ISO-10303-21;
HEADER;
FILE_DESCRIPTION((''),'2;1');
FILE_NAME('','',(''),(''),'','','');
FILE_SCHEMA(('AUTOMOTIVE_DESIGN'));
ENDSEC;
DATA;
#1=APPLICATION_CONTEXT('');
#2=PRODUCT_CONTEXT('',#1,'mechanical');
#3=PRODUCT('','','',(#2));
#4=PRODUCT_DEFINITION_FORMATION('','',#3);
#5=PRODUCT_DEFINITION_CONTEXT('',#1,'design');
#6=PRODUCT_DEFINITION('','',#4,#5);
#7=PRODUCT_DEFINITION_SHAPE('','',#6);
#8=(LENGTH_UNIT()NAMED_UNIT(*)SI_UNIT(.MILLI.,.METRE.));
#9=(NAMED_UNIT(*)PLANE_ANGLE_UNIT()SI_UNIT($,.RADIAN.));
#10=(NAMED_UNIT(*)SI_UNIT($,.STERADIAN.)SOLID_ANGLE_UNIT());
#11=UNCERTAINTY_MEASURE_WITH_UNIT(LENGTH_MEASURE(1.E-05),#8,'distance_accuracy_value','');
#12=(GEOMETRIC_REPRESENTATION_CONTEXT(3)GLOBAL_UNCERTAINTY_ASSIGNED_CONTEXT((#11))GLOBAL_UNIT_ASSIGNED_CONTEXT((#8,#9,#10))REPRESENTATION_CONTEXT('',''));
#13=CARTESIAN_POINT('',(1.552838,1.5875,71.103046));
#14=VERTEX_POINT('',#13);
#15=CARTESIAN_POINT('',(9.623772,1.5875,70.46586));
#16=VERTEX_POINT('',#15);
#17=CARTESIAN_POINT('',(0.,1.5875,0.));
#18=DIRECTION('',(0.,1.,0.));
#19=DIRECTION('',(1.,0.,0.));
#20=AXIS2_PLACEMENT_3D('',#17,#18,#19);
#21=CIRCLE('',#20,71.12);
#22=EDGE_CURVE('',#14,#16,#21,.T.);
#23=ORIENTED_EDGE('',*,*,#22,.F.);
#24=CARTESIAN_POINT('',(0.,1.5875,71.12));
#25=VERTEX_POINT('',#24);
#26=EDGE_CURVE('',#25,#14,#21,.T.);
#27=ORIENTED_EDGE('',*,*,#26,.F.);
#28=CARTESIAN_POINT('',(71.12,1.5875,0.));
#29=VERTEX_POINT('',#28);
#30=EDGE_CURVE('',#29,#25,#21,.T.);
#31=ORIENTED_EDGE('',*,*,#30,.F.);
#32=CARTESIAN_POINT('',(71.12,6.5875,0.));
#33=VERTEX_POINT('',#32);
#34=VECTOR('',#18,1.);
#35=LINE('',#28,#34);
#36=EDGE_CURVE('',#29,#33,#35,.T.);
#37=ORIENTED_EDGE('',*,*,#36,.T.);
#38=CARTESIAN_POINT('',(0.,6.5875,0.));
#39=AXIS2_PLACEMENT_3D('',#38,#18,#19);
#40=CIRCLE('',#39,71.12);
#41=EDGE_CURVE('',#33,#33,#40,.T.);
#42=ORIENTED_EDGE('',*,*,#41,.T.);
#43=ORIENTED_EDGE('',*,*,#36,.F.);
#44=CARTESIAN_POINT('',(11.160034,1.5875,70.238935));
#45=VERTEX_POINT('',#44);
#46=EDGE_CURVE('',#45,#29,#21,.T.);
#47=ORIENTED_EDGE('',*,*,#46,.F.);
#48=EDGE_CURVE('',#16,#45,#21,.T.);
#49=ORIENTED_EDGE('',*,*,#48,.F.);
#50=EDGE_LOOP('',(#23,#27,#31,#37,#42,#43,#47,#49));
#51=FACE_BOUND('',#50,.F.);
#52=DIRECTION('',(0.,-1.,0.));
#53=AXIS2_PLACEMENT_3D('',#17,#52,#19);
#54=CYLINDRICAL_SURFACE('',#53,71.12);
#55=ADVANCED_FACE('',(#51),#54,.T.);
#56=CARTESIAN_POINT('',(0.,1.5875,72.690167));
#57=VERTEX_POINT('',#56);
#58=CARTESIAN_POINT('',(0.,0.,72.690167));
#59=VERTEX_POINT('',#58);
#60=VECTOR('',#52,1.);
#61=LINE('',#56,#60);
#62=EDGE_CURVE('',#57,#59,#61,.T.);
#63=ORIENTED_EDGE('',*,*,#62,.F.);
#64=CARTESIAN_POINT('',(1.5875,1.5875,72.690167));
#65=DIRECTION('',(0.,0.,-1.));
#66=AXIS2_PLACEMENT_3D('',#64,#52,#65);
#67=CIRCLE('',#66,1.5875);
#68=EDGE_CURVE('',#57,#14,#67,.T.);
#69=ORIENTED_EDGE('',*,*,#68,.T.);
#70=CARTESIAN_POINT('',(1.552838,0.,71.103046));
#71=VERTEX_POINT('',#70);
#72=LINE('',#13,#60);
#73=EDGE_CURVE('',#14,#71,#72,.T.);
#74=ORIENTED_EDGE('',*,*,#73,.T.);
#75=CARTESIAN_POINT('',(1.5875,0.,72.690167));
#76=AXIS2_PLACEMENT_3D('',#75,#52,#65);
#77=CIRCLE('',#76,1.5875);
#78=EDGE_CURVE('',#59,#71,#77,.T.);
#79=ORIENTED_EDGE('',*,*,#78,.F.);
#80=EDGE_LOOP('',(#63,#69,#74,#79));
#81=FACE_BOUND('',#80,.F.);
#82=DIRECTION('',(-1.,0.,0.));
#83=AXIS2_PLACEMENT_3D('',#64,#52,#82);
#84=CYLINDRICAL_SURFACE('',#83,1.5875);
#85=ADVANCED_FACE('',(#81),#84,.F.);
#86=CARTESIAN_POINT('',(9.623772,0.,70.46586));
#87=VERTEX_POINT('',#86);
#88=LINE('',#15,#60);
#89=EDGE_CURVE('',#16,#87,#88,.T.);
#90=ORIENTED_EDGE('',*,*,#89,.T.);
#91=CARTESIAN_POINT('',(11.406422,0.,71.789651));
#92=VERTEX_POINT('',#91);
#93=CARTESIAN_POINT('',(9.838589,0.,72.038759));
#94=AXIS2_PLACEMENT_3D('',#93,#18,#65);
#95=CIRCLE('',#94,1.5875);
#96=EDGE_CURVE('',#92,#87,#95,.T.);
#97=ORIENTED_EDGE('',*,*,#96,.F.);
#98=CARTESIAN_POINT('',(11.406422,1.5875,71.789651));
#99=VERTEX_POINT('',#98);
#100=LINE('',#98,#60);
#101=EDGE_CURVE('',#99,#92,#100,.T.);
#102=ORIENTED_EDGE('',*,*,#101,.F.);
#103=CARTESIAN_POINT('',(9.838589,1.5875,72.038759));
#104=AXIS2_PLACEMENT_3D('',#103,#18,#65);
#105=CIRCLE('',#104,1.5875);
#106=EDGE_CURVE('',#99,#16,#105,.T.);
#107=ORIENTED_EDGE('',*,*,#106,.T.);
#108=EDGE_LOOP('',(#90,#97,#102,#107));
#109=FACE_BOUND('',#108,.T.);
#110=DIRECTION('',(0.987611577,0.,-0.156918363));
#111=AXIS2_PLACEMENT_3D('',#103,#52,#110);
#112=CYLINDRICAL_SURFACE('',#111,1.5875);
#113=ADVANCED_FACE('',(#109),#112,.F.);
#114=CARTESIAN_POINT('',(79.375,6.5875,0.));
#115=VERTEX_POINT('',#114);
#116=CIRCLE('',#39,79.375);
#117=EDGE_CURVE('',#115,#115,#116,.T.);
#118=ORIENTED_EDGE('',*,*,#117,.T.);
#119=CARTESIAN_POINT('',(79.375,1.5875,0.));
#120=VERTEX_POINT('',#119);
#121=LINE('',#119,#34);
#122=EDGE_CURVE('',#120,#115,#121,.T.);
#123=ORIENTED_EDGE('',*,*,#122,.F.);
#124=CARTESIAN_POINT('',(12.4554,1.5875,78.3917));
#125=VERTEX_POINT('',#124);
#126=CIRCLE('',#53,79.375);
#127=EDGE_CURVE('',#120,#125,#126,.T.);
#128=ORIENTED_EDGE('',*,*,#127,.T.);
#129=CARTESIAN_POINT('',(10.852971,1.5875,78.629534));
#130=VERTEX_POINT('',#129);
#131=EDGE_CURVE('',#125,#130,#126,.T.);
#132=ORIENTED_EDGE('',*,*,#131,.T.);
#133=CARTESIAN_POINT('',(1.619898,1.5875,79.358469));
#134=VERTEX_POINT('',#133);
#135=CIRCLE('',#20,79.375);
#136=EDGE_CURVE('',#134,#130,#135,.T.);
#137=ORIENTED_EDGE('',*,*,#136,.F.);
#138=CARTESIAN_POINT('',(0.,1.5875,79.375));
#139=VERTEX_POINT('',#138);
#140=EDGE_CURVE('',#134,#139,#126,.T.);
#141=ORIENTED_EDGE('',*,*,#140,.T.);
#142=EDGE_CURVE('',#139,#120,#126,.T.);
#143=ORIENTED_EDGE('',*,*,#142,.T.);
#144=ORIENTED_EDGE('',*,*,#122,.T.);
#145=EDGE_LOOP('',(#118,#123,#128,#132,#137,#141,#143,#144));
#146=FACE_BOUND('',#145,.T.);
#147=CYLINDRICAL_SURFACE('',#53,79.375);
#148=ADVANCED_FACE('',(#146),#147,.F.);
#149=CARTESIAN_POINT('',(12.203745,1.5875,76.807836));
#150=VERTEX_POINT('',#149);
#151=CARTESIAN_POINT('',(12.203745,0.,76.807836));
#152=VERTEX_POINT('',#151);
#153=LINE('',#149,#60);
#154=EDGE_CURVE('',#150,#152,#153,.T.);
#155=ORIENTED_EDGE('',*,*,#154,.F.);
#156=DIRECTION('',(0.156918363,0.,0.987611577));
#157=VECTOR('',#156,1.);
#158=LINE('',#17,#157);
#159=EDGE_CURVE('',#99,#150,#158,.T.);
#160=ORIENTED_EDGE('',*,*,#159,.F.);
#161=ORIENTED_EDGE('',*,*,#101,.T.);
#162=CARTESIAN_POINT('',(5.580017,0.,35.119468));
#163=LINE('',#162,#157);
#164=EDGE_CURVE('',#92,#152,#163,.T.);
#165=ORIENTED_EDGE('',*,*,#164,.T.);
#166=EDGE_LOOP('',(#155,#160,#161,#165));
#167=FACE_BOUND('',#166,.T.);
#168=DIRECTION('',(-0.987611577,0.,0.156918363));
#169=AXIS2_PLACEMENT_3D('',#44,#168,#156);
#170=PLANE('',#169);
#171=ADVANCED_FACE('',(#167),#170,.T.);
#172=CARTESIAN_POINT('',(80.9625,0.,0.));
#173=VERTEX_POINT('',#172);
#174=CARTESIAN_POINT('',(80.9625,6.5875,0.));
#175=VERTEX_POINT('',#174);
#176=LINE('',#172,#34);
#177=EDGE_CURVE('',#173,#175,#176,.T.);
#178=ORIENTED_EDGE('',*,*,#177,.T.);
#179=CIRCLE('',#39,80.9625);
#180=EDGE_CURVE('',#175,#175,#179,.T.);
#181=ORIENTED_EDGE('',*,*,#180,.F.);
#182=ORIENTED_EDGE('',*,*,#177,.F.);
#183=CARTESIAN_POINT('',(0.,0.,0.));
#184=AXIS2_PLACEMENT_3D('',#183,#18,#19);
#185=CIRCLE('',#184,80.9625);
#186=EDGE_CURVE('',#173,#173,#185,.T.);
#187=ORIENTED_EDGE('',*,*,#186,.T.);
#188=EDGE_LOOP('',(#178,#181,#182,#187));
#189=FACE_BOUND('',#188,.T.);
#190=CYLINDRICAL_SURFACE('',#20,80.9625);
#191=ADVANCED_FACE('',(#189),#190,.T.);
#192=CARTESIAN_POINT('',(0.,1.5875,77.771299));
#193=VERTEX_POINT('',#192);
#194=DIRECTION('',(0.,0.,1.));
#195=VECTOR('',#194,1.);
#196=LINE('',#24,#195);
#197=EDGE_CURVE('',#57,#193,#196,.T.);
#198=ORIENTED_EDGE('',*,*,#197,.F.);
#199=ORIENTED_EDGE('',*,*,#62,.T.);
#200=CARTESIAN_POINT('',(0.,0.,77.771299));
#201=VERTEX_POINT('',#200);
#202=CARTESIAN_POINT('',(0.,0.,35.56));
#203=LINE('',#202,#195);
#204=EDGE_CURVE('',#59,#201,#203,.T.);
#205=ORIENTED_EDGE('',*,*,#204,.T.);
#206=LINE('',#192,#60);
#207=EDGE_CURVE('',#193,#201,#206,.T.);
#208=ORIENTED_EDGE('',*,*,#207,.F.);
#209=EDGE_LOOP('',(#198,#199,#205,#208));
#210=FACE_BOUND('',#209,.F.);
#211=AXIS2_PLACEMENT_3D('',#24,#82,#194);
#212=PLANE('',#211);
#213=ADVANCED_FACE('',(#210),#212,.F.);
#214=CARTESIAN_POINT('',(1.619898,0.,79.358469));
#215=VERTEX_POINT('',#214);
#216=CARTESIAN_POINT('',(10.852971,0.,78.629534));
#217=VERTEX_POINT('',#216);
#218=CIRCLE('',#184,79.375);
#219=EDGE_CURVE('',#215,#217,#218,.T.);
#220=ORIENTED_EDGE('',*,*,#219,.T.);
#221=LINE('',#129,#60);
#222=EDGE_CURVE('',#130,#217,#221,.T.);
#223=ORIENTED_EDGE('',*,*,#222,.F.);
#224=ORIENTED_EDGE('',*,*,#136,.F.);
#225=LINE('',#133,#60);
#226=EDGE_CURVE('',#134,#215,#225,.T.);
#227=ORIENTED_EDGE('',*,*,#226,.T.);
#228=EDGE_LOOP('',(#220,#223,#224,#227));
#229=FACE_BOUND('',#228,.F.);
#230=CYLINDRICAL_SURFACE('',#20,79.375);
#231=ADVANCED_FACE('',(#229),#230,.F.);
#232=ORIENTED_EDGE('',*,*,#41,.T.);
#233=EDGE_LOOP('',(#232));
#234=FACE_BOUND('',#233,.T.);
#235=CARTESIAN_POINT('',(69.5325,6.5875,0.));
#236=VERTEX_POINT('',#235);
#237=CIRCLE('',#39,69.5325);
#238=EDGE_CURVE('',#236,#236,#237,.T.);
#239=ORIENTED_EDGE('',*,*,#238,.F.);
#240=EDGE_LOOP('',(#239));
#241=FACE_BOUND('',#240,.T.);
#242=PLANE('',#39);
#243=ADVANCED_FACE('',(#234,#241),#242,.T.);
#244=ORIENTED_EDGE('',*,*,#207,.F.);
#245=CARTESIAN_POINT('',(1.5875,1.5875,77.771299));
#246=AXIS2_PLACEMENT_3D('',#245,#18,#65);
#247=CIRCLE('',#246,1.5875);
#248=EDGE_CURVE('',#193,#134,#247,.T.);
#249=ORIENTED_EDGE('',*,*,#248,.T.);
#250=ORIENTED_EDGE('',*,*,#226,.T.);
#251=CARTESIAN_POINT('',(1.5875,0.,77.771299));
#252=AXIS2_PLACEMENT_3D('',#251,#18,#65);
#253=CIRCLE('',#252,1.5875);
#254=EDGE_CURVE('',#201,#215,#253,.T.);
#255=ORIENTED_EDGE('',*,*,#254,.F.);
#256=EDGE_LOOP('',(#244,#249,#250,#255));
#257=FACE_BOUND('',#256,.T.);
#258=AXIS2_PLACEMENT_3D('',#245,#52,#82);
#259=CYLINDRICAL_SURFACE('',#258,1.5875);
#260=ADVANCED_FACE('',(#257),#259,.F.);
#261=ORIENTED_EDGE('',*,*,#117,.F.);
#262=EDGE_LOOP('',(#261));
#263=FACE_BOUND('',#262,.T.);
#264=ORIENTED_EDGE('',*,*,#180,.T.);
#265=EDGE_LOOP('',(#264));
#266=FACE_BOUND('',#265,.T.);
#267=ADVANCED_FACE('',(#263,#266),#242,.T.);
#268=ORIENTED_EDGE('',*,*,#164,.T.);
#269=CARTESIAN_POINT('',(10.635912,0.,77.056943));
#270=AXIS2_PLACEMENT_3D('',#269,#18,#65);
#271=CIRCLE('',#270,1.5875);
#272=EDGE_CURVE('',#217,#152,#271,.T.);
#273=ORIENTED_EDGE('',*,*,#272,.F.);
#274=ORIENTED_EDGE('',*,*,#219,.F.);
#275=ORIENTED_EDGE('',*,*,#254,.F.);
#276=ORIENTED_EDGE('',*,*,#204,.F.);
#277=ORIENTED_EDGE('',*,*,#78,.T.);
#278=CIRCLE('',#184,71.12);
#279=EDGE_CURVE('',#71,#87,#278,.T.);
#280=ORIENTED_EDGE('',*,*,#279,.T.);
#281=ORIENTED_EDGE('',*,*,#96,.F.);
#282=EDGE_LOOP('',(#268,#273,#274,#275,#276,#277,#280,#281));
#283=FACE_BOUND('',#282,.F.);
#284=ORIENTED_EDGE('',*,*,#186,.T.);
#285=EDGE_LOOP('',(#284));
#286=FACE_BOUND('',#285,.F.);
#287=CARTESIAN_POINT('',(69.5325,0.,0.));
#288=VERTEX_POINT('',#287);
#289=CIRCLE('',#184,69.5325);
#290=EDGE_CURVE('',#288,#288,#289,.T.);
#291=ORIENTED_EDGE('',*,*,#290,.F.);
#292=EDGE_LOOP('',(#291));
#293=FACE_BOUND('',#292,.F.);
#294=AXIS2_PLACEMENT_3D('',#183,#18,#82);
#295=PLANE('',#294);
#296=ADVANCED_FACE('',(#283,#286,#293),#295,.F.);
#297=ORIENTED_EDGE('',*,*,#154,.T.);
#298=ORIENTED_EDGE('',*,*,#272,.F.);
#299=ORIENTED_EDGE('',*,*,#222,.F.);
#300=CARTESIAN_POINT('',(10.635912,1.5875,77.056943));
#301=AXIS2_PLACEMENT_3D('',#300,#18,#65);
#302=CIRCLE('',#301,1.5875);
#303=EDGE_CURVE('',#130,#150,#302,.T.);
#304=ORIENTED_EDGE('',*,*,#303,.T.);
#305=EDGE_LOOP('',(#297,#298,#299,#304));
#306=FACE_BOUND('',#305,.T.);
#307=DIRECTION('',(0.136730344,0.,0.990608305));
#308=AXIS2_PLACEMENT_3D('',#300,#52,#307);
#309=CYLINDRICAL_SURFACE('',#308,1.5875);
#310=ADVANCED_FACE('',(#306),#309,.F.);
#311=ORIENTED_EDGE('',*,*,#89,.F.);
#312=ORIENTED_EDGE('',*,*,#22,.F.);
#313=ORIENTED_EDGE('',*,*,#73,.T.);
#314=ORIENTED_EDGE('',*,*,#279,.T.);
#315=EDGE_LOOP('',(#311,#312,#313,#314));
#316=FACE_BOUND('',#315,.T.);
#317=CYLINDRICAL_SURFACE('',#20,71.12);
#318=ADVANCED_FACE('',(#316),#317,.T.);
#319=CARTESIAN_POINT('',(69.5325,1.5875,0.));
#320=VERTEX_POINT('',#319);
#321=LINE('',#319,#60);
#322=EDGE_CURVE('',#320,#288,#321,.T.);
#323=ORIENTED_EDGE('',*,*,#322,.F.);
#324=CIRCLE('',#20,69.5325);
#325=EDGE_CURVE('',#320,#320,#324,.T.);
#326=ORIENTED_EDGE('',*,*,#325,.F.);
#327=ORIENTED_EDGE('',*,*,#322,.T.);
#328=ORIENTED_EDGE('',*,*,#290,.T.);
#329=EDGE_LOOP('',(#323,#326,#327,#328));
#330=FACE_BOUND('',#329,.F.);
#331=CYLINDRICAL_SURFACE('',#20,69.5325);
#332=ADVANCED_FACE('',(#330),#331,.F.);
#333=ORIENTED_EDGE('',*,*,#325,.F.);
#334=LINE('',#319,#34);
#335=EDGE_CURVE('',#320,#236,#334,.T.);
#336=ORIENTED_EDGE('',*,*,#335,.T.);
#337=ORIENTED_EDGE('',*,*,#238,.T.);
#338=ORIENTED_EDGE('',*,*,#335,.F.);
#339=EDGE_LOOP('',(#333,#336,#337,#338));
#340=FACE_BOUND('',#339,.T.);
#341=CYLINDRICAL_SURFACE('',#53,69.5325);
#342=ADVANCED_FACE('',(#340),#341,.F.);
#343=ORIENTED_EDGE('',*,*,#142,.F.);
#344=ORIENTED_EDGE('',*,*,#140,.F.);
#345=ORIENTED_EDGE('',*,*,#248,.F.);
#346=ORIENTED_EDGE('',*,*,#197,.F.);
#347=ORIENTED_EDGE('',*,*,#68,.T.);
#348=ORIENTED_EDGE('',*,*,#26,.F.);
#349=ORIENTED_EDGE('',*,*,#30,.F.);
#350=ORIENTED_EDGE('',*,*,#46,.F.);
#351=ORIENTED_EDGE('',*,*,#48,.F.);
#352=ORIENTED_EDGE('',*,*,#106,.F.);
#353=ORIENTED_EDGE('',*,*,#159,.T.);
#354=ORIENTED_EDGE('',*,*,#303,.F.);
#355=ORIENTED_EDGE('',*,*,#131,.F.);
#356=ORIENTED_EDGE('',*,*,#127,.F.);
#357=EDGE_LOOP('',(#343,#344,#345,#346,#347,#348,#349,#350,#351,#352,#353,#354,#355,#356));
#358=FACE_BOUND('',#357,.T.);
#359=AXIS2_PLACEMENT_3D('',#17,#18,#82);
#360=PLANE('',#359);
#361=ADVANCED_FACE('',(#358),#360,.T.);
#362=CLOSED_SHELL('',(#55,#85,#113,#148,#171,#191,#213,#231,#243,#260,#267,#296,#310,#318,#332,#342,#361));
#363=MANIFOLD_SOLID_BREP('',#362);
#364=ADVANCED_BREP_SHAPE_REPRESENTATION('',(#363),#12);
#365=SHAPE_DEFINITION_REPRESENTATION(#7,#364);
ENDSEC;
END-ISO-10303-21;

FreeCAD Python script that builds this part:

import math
import FreeCAD as App
import Part
import Sketcher

V = App.Vector
Q = App.Units.Quantity


def edges_at(feature, points):
    """Names of the edges that pass closest to the given points."""
    edges = feature.Shape.Edges
    near = lambda p: min(range(len(edges)), key=lambda i: edges[i].distToShape(Part.Vertex(*p))[0])
    return sorted({f"Edge{near(p) + 1}" for p in points})

doc = App.newDocument("Part")
body = doc.addObject("PartDesign::Body", "Body")

sketch1 = body.newObject("Sketcher::SketchObject", "Sketch")
sketch1.AttachmentSupport = (doc.getObject("XZ_Plane"), [""])
sketch1.MapMode = "FlatFace"
sketch1.addGeometry([
    Part.Circle(V(0, 0, 0), V(0, 0, 1), 79.375),
    Part.Circle(V(0, 0, 0), V(0, 0, 1), 71.12),
], False)
sketch1.addConstraint([
    Sketcher.Constraint("Coincident", 0, 3, -1, 1),
    Sketcher.Constraint("Coincident", 1, 3, -1, 1),
    Sketcher.Constraint("Diameter", 1, Q("5.6 in")),
    Sketcher.Constraint("Diameter", 0, Q("6.25 in")),
])
pad1 = body.newObject("PartDesign::Pad", "Pad")
pad1.Profile = sketch1
pad1.Length = Q("0.0625 in")
pad1.Reversed = True

sketch2 = body.newObject("Sketcher::SketchObject", "Sketch001")
sketch2.AttachmentSupport = (doc.getObject("XZ_Plane"), [""])
sketch2.MapMode = "FlatFace"
sketch2.AttachmentOffset = App.Placement(V(0, 0, -0.0625 * 25.4), App.Rotation())
sketch2.addGeometry([
    Part.Circle(V(0, 0, 0), V(0, 0, 1), 80.9625),
    Part.Circle(V(0, 0, 0), V(0, 0, 1), 79.375),
    Part.Circle(V(0, 0, 0), V(0, 0, 1), 71.12),
    Part.Circle(V(0, 0, 0), V(0, 0, 1), 69.5325),
], False)
sketch2.addConstraint([
    Sketcher.Constraint("Coincident", 0, 3, -1, 1),
    Sketcher.Constraint("Coincident", 1, 3, -1, 1),
    Sketcher.Constraint("Coincident", 2, 3, -1, 1),
    Sketcher.Constraint("Coincident", 3, 3, -1, 1),
    Sketcher.Constraint("Diameter", 2, Q("5.6 in")),
    Sketcher.Constraint("Diameter", 1, Q("6.25 in")),
    Sketcher.Constraint("Diameter", 0, Q("6.375 in")),
    Sketcher.Constraint("Diameter", 3, Q("5.475 in")),
])
pad2 = body.newObject("PartDesign::Pad", "Pad001")
pad2.Profile = sketch2
pad2.Type = "TwoLengths"
pad2.Length = 5
pad2.Length2 = Q("0.0625 in")
pad2.Reversed = True

sketch3 = body.newObject("Sketcher::SketchObject", "Sketch002")
sketch3.AttachmentSupport = (doc.getObject("XZ_Plane"), [""])
sketch3.MapMode = "FlatFace"
sketch3.AttachmentOffset = App.Placement(V(0, 0, -0.0625 * 25.4), App.Rotation())
sketch3.addGeometry([
    Part.LineSegment(V(0, 71.12, 0), V(0, 79.375, 0)),
    Part.ArcOfCircle(Part.Circle(V(0, 0, 0), V(0, 0, 1), 79.375), math.radians(80.971928), math.radians(90)),
    Part.LineSegment(V(12.4554, 78.3917, 0), V(11.160034, 70.238935, 0)),
    Part.ArcOfCircle(Part.Circle(V(0, 0, 0), V(0, 0, 1), 71.12), math.radians(80.971928), math.radians(90)),
], False)
sketch3.addConstraint([
    Sketcher.Constraint("Coincident", 0, 2, 1, 2),
    Sketcher.Constraint("Coincident", 1, 1, 2, 1),
    Sketcher.Constraint("Coincident", 2, 2, 3, 1),
    Sketcher.Constraint("Coincident", 3, 2, 0, 1),
    Sketcher.Constraint("Vertical", 0),
    Sketcher.Constraint("Coincident", 1, 3, -1, 1),
    Sketcher.Constraint("Coincident", 3, 3, -1, 1),
    Sketcher.Constraint("PointOnObject", 0, 2, -2),
    Sketcher.Constraint("Radius", 3, Q("2.8 in")),
    Sketcher.Constraint("Radius", 1, Q("3.125 in")),
    Sketcher.Constraint("DistanceX", 2, 2, 1, 1, Q("0.051 in")),
    Sketcher.Constraint("DistanceX", -1, 1, 1, 1, Q("12.4554 mm")),
])
pocket1 = body.newObject("PartDesign::Pocket", "Pocket")
pocket1.Profile = sketch3
pocket1.Length = 5
pocket1.Reversed = True
doc.recompute()

fillet = body.newObject("PartDesign::Fillet", "Fillet")
fillet.Base = (pocket1, edges_at(pocket1, [
    (11.16, 0.794, 70.239),
    (12.455, 0.794, 78.392),
    (0, 0.794, 79.375),
    (0, 0.794, 71.12),
]))
fillet.Radius = Q("0.0625 in")

doc.recompute()
